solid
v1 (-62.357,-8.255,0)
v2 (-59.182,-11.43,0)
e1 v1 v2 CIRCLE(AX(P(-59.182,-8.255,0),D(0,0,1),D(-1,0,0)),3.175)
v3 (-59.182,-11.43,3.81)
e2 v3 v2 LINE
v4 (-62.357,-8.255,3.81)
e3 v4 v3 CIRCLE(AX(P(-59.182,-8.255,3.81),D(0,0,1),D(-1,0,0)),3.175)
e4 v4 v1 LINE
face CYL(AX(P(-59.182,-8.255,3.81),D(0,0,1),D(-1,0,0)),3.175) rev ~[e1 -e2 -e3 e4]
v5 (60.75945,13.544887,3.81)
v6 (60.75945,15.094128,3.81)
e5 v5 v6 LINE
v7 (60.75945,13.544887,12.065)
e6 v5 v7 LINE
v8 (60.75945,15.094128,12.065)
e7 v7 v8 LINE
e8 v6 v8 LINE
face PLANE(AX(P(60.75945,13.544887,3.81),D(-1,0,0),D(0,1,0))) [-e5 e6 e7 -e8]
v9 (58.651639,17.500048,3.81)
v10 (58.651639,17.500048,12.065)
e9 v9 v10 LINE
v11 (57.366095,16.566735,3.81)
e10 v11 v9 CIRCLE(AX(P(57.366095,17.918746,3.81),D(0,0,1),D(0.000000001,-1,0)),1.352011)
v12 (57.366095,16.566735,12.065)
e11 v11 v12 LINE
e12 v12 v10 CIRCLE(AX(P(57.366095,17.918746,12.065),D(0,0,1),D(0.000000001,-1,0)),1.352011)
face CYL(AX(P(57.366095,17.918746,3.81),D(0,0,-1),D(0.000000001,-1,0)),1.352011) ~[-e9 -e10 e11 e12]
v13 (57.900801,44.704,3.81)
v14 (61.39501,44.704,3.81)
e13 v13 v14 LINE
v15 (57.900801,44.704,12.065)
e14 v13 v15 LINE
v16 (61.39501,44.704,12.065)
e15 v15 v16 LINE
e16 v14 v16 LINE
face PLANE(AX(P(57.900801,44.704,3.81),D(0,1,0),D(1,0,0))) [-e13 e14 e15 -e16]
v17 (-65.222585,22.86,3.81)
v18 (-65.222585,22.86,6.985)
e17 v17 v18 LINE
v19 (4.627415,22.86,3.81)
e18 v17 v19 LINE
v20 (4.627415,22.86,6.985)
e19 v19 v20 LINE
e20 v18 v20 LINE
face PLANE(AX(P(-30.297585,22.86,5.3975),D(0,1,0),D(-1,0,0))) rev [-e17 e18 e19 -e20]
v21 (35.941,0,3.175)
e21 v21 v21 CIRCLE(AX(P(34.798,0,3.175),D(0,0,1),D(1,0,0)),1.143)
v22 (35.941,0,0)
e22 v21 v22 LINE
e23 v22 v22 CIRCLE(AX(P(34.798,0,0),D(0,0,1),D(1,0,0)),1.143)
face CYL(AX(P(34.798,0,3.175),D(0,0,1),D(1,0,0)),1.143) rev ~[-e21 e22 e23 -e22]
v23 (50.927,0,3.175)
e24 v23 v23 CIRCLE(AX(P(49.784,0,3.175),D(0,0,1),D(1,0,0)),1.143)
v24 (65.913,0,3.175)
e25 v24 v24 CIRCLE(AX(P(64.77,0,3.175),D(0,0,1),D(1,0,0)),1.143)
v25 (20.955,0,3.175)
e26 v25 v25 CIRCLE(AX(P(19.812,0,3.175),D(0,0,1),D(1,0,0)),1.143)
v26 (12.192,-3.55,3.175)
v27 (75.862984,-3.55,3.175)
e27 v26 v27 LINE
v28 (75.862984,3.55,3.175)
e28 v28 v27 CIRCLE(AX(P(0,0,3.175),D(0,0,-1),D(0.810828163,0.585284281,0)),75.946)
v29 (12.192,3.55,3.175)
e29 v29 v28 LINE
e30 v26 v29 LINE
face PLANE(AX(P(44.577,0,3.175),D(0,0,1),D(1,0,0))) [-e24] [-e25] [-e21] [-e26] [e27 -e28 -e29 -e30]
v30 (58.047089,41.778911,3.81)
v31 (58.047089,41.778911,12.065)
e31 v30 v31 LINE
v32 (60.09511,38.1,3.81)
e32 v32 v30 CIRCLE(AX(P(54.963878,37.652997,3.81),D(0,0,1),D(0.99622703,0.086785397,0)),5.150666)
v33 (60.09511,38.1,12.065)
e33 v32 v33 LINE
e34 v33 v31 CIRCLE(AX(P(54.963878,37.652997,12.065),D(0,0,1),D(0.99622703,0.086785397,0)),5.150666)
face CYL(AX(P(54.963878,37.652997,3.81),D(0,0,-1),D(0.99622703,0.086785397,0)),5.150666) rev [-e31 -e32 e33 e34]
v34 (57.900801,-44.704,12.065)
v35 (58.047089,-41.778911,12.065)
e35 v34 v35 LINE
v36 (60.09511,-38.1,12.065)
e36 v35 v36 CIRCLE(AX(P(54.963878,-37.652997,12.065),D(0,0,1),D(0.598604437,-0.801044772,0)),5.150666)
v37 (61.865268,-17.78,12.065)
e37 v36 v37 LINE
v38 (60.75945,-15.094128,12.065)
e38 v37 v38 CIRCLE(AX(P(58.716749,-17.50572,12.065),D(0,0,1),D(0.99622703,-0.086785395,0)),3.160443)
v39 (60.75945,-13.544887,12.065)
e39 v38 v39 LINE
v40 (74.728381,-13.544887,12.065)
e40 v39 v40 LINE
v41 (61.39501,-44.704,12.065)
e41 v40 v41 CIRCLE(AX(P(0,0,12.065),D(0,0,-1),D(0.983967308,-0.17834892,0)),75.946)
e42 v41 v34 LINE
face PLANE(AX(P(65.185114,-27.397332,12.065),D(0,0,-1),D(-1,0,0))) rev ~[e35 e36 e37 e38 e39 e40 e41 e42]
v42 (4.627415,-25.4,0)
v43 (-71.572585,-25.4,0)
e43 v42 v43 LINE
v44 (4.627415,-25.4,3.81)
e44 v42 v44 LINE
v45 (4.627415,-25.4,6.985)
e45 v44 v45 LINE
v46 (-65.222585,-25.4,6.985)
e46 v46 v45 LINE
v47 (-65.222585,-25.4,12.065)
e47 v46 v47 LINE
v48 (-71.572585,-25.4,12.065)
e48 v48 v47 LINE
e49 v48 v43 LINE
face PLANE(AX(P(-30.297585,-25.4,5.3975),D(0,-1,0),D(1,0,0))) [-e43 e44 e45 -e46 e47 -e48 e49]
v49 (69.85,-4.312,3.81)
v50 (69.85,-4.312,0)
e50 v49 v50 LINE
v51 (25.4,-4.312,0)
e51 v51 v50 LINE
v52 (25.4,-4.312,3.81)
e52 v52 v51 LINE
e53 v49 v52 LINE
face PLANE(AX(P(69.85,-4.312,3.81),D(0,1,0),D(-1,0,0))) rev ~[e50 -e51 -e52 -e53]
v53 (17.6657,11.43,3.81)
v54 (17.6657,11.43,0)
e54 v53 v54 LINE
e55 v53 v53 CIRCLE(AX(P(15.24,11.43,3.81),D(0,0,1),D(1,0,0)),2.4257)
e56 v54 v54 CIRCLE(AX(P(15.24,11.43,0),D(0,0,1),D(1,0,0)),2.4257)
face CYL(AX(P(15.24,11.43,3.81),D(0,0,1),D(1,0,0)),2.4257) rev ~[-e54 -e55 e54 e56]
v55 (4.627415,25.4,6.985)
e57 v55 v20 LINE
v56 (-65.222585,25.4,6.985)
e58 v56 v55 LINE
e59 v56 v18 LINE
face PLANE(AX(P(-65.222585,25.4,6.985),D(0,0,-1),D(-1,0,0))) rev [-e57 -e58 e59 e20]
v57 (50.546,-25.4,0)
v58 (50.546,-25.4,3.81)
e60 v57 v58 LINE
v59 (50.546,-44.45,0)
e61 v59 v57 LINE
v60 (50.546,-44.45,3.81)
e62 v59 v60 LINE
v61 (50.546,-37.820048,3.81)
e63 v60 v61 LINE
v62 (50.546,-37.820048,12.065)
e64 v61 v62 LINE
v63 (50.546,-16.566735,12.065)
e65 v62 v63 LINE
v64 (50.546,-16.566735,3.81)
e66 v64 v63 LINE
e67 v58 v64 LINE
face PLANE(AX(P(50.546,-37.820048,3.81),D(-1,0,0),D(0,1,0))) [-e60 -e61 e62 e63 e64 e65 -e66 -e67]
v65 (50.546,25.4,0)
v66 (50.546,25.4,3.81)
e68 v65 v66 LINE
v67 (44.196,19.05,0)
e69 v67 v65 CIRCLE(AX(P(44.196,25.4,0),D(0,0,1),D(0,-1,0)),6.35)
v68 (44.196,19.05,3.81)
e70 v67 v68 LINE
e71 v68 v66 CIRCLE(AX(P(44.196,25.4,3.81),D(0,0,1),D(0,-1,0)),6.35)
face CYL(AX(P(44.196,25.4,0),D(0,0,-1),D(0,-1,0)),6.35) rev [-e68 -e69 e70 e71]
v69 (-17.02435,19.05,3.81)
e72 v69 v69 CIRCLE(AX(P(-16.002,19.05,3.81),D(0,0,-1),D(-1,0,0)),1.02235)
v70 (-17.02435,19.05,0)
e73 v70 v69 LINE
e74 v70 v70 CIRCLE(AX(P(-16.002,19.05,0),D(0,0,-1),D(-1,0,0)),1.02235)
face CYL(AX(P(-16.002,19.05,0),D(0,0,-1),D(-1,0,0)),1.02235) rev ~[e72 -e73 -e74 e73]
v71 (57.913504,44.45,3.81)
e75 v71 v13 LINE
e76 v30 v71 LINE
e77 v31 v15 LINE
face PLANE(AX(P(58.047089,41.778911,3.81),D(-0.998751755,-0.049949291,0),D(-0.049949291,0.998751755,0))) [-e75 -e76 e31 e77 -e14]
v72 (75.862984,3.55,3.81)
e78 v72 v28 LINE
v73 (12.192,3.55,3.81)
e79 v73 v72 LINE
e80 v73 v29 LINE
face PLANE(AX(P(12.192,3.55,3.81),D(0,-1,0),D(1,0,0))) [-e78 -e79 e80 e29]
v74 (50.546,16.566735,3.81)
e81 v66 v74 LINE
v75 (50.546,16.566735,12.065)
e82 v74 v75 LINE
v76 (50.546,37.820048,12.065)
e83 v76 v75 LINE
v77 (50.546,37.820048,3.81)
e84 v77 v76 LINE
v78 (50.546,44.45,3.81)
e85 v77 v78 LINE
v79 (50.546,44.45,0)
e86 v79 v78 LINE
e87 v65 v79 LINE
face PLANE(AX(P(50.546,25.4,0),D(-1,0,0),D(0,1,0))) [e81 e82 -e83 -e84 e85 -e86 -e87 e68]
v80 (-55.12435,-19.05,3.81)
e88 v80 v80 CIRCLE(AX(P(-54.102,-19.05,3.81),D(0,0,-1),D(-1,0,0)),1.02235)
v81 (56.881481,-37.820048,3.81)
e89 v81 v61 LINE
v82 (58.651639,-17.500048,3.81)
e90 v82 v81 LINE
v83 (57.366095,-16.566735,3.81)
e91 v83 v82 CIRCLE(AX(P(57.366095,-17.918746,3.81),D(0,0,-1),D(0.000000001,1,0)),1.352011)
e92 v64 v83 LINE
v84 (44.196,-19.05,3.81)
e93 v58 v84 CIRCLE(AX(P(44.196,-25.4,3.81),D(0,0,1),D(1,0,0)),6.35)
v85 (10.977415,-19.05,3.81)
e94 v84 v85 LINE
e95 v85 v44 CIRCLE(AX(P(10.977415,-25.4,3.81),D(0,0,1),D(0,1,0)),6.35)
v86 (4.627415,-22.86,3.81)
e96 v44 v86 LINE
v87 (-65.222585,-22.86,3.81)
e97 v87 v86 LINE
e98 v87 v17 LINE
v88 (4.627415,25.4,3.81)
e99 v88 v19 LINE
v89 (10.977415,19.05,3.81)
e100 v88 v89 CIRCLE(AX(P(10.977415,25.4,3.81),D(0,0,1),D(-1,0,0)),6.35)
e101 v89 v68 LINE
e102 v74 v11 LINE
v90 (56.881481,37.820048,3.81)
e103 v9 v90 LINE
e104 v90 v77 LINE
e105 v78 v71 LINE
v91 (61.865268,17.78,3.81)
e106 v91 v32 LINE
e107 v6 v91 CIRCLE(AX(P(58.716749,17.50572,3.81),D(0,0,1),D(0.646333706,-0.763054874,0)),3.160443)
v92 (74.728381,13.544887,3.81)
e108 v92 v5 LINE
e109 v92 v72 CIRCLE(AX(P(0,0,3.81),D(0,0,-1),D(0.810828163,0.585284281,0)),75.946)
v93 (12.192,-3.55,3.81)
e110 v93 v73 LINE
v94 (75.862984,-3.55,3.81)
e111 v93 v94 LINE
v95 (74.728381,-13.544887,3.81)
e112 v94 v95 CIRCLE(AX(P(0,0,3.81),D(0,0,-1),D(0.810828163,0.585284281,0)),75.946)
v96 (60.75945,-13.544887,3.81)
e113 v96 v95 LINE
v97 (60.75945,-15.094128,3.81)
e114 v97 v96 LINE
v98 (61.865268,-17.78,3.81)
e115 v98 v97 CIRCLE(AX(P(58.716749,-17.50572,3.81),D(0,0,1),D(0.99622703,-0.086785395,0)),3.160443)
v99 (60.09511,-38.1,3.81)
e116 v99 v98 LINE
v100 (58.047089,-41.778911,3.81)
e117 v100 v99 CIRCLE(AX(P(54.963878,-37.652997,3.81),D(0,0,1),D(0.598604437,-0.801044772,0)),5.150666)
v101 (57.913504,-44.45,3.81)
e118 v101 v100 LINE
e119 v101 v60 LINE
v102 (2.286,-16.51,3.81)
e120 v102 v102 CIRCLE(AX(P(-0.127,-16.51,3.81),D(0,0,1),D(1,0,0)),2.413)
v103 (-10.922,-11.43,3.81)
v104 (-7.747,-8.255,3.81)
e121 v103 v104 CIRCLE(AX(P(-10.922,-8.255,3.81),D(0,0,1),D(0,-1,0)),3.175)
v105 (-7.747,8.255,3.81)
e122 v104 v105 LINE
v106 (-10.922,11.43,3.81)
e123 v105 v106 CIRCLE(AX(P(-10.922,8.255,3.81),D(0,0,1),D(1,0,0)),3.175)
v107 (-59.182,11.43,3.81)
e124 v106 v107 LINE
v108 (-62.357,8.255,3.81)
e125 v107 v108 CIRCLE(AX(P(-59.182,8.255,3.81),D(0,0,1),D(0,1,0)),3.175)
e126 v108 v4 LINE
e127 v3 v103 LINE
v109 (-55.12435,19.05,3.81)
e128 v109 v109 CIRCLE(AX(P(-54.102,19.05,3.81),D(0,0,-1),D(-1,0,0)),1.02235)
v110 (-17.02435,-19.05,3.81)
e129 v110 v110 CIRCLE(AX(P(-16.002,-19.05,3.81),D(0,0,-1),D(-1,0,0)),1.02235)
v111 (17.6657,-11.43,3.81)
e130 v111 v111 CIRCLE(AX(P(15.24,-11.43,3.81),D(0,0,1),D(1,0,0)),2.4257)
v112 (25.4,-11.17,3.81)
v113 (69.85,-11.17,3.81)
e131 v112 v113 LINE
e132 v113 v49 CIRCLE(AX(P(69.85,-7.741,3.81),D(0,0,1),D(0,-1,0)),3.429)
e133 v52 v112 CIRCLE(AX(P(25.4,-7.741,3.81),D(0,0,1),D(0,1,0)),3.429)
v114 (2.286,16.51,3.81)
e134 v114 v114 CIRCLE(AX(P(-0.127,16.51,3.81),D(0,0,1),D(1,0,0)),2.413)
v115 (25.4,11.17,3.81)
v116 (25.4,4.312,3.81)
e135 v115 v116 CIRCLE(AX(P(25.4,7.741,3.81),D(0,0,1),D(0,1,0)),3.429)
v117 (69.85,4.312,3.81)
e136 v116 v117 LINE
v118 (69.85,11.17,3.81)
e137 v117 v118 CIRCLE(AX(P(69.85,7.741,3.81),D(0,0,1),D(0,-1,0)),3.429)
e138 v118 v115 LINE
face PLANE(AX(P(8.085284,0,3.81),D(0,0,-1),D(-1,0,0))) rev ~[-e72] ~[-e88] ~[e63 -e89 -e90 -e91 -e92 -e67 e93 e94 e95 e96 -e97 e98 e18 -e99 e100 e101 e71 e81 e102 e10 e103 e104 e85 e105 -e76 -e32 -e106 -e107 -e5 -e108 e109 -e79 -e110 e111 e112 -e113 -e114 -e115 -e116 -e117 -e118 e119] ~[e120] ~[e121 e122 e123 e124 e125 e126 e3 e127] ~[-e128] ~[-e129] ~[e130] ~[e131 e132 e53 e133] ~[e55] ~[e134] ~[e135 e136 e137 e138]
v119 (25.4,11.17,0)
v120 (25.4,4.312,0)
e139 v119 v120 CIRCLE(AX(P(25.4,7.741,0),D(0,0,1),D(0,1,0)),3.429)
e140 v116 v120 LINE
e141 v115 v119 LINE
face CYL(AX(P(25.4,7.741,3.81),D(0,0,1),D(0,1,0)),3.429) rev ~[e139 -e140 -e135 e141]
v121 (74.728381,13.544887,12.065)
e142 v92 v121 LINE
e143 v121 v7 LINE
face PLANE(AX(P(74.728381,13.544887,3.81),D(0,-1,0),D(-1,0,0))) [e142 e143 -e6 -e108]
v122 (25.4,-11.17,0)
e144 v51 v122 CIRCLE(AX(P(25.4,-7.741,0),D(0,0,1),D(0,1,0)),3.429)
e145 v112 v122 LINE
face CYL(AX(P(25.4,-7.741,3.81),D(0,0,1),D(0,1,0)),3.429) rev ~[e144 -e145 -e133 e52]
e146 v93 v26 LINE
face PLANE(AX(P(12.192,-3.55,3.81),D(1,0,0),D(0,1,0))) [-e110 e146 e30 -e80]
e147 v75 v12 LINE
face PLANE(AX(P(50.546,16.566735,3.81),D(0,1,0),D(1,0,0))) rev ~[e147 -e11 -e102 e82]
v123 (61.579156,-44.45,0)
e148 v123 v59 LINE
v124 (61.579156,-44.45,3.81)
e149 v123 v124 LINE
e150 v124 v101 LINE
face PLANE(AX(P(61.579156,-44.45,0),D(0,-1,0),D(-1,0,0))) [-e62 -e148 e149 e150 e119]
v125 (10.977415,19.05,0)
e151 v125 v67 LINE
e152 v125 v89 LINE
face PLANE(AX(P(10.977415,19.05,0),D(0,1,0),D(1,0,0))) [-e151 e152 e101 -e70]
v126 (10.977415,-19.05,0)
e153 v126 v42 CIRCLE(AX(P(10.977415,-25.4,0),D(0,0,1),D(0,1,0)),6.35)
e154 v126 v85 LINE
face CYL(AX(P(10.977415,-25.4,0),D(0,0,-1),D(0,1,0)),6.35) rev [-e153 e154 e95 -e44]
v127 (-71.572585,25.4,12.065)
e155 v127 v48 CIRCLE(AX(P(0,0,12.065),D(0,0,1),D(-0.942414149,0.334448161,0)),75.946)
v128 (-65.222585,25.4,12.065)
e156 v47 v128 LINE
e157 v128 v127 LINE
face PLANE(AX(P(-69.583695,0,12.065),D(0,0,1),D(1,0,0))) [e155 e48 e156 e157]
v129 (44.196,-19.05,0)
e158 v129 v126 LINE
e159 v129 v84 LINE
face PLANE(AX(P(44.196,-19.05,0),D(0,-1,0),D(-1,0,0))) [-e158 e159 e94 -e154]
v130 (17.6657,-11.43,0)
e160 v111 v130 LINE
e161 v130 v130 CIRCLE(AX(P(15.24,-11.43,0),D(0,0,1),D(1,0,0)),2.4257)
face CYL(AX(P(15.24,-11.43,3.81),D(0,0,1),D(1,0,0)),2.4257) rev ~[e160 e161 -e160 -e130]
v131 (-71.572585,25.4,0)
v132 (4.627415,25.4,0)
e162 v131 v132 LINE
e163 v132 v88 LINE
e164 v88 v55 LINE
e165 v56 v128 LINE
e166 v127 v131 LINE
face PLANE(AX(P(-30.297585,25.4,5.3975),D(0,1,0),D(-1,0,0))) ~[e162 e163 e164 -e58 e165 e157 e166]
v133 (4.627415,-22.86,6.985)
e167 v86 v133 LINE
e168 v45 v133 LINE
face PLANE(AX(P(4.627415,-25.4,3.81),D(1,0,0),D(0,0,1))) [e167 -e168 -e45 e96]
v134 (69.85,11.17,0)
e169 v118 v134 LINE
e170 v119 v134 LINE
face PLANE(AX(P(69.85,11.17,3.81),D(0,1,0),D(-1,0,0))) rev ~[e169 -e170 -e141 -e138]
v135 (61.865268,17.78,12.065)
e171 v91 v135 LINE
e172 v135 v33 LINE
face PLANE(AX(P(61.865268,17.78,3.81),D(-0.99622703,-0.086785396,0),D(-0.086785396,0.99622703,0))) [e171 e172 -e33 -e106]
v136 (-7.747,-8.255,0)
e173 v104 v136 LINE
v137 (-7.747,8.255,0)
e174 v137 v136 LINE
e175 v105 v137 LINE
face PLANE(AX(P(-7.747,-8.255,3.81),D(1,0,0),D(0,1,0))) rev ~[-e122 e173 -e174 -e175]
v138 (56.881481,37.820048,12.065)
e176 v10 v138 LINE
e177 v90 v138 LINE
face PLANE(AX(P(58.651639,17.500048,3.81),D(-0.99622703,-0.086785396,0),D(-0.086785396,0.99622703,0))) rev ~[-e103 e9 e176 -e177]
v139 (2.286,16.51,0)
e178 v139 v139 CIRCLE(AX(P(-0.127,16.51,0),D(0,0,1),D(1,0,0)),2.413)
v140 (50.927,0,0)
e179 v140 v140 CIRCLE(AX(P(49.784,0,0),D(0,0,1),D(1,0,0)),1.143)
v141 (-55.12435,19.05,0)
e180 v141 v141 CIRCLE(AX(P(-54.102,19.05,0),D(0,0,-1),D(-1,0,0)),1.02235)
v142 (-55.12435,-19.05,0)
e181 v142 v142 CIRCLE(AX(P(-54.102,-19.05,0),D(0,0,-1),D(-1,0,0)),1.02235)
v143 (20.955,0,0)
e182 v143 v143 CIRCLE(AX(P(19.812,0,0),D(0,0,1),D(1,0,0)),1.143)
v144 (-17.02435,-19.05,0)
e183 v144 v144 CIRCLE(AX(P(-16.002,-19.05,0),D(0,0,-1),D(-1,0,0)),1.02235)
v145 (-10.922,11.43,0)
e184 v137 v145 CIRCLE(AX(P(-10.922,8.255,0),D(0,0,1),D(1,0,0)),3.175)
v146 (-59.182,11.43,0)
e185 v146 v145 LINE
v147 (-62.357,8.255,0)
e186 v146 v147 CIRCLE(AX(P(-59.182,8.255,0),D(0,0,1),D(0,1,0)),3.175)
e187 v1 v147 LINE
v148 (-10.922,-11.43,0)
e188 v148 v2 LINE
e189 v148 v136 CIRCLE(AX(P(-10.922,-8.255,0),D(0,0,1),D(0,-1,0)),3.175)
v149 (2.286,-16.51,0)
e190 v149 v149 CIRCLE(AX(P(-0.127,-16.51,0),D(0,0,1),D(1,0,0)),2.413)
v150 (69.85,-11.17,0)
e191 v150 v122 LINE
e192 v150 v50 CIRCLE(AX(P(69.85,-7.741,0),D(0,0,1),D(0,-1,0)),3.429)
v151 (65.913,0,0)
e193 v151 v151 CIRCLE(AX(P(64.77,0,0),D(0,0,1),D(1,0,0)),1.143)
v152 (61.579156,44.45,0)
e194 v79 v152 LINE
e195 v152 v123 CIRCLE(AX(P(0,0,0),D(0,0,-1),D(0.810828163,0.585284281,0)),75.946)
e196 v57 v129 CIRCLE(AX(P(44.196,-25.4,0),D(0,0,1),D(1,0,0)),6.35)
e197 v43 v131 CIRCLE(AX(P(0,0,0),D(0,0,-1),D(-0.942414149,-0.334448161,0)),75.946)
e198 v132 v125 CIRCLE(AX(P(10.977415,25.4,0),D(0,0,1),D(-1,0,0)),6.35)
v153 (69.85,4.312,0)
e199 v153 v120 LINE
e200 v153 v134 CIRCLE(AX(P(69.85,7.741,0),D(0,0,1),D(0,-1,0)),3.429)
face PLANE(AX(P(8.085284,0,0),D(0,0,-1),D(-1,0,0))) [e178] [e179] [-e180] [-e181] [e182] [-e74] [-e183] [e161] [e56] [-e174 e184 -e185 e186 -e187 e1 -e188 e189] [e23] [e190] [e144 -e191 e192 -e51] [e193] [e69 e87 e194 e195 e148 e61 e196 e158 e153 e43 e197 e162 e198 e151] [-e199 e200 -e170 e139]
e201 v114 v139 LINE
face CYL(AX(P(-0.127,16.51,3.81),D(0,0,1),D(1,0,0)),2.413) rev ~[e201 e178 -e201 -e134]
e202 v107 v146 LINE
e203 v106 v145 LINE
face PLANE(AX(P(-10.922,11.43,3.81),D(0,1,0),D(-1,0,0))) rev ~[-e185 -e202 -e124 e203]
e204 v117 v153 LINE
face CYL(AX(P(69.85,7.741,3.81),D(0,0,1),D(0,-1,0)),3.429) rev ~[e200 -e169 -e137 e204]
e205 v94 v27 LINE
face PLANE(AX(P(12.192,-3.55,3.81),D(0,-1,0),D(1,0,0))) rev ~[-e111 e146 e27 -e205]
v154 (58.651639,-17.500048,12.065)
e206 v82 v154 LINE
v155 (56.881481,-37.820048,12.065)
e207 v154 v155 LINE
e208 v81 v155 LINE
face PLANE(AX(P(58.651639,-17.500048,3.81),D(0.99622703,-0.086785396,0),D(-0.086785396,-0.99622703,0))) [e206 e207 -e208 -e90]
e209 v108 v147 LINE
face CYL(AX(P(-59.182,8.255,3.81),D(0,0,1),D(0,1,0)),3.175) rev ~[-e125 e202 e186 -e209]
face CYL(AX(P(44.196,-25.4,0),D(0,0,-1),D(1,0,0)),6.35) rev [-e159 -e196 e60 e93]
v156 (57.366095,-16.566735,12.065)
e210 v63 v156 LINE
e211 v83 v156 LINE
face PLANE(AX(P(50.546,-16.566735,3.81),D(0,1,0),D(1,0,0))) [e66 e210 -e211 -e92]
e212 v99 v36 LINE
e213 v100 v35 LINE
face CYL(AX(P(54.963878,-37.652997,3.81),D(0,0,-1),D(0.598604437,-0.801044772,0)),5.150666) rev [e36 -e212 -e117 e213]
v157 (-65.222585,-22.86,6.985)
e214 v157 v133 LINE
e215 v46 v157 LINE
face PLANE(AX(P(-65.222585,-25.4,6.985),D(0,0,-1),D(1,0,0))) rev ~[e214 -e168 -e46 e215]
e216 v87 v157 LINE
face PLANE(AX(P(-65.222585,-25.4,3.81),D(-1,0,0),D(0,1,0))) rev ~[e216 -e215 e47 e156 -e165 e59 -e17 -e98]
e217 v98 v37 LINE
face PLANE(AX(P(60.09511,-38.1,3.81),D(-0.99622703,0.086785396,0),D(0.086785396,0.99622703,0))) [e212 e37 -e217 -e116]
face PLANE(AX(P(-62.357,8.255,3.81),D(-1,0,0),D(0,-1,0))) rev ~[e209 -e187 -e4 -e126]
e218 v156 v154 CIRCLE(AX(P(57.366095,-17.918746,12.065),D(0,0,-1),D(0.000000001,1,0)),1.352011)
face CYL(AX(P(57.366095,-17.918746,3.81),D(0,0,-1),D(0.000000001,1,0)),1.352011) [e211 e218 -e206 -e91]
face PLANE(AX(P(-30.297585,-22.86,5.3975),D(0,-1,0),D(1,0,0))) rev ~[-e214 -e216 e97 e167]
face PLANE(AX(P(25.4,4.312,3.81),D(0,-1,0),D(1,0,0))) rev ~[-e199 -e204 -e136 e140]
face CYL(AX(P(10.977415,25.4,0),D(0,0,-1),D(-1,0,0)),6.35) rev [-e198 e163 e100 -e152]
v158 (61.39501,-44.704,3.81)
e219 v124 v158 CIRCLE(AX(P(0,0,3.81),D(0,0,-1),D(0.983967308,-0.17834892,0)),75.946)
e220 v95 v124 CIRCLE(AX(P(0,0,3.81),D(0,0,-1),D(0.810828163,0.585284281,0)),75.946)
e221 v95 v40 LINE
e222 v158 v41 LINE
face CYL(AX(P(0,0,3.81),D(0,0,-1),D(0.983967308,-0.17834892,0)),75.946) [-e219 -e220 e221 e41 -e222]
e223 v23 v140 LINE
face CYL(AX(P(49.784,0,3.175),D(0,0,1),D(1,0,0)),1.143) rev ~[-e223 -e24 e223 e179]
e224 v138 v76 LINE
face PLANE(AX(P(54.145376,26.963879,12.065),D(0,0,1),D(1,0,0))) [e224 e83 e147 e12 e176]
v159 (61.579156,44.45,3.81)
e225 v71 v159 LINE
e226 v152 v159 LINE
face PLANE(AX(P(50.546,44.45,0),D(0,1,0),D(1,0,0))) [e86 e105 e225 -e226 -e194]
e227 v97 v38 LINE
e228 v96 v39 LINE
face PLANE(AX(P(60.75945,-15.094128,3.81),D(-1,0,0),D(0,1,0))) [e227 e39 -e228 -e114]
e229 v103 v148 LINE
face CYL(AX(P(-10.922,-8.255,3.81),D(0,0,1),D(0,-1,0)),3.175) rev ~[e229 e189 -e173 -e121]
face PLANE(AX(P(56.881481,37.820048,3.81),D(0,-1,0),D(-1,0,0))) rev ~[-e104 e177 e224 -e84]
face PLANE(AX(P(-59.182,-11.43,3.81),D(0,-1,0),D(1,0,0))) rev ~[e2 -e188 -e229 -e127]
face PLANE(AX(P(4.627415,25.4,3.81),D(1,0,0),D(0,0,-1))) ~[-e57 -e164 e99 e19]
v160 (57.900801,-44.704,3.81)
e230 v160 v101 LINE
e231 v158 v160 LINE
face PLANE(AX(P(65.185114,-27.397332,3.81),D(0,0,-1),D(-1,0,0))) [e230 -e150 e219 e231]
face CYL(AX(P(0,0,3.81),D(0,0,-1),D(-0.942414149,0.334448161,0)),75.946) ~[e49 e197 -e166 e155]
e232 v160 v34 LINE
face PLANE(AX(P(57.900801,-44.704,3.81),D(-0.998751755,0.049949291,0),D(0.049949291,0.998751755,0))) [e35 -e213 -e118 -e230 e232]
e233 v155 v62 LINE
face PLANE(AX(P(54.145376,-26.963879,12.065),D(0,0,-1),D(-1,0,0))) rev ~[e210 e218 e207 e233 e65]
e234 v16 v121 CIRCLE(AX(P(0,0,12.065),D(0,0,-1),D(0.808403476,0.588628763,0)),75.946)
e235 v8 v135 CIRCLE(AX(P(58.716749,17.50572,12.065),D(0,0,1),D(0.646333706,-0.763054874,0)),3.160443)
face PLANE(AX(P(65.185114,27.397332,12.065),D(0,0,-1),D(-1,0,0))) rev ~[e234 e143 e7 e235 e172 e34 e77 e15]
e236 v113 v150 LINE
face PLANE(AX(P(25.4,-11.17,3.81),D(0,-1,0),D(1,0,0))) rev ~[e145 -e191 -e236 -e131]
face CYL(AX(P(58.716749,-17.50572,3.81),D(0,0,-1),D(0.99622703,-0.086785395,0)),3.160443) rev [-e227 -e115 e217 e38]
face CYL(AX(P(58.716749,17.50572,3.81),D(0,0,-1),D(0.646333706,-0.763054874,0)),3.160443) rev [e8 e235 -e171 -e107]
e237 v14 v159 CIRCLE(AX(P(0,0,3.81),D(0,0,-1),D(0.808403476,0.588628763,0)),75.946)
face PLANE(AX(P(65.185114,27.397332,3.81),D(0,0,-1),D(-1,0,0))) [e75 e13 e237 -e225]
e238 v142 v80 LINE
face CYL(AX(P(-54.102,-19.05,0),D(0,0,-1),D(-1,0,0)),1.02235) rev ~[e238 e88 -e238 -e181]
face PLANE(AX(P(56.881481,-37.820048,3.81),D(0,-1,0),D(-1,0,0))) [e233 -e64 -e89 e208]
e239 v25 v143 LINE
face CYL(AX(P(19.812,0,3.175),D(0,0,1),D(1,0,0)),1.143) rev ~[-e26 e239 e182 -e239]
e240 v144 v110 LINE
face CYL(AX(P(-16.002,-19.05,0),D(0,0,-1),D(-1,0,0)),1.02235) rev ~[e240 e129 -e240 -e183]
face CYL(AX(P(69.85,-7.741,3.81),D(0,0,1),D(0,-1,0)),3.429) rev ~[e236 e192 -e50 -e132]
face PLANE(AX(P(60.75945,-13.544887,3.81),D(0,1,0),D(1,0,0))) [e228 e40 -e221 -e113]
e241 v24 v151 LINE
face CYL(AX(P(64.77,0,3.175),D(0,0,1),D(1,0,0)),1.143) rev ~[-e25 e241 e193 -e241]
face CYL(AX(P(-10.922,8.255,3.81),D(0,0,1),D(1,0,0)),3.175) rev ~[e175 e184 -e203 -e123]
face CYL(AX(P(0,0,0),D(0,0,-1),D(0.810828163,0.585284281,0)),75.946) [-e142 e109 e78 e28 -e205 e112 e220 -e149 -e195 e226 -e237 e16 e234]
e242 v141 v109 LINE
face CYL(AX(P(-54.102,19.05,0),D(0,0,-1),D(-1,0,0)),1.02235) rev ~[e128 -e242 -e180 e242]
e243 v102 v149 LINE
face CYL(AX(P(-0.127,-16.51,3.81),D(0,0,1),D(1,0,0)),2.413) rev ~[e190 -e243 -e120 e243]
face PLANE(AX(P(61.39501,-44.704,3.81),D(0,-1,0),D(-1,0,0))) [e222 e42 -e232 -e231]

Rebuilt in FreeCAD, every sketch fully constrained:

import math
import FreeCAD as App
import Part
import Sketcher

V = App.Vector
Q = App.Units.Quantity


def add_polygon(sketch, points):
    """Adds a closed chain of lines whose ends are joined by coincident constraints."""
    first, n = sketch.GeometryCount, len(points)
    for a, b in zip(points, points[1:] + points[:1]):
        sketch.addGeometry(Part.LineSegment(App.Vector(*a, 0), App.Vector(*b, 0)), False)
    for i in range(n):
        sketch.addConstraint(Sketcher.Constraint("Coincident", first + i, 2, first + (i + 1) % n, 1))

doc = App.newDocument("Part")
body = doc.addObject("PartDesign::Body", "Body")

sketch1 = doc.addObject("Sketcher::SketchObject", "Sketch")
body.addObject(sketch1)
sketch1.AttachmentSupport = (doc.XY_Plane, [""])
sketch1.MapMode = "FlatFace"
sketch1.addGeometry([
    Part.LineSegment(V(44.196, 19.05, 0), V(10.977415, 19.05, 0)),
    Part.ArcOfCircle(Part.Circle(V(10.977415, 25.4, 0), V(0, 0, 1), 6.35), math.radians(180), math.radians(270)),
    Part.LineSegment(V(4.627415, 25.4, 0), V(-71.572585, 25.4, 0)),
    Part.ArcOfCircle(Part.Circle(V(0, 0, 0), V(0, 0, 1), 75.946), math.radians(160.461016), math.radians(199.538984)),
    Part.LineSegment(V(-71.572585, -25.4, 0), V(4.627415, -25.4, 0)),
    Part.ArcOfCircle(Part.Circle(V(10.977415, -25.4, 0), V(0, 0, 1), 6.35), math.radians(90), math.radians(180)),
    Part.LineSegment(V(10.977415, -19.05, 0), V(44.196, -19.05, 0)),
    Part.ArcOfCircle(Part.Circle(V(44.196, -25.4, 0), V(0, 0, 1), 6.35), math.radians(0), math.radians(90)),
    Part.LineSegment(V(50.546, -25.4, 0), V(50.546, -44.45, 0)),
    Part.LineSegment(V(50.546, -44.45, 0), V(61.579156, -44.45, 0)),
    Part.ArcOfCircle(Part.Circle(V(0, 0, 0), V(0, 0, 1), 75.946), math.radians(-35.823076), math.radians(35.823076)),
    Part.LineSegment(V(61.579156, 44.45, 0), V(50.546, 44.45, 0)),
    Part.LineSegment(V(50.546, 44.45, 0), V(50.546, 25.4, 0)),
    Part.ArcOfCircle(Part.Circle(V(44.196, 25.4, 0), V(0, 0, 1), 6.35), math.radians(-90), math.radians(0)),
], False)
sketch1.addConstraint([
    Sketcher.Constraint("Tangent", 0, 2, 1, 2),
    Sketcher.Constraint("Coincident", 1, 1, 2, 1),
    Sketcher.Constraint("Coincident", 2, 2, 3, 1),
    Sketcher.Constraint("Coincident", 3, 2, 4, 1),
    Sketcher.Constraint("Coincident", 4, 2, 5, 2),
    Sketcher.Constraint("Tangent", 5, 1, 6, 1),
    Sketcher.Constraint("Tangent", 6, 2, 7, 2),
    Sketcher.Constraint("Tangent", 7, 1, 8, 1),
    Sketcher.Constraint("Coincident", 8, 2, 9, 1),
    Sketcher.Constraint("Coincident", 9, 2, 10, 1),
    Sketcher.Constraint("Coincident", 10, 2, 11, 1),
    Sketcher.Constraint("Coincident", 11, 2, 12, 1),
    Sketcher.Constraint("Tangent", 12, 2, 13, 2),
    Sketcher.Constraint("Tangent", 13, 1, 0, 1),
    Sketcher.Constraint("Horizontal", 0),
    Sketcher.Constraint("Horizontal", 2),
    Sketcher.Constraint("Horizontal", 4),
    Sketcher.Constraint("Horizontal", 6),
    Sketcher.Constraint("Vertical", 8),
    Sketcher.Constraint("Horizontal", 9),
    Sketcher.Constraint("Horizontal", 11),
    Sketcher.Constraint("Vertical", 12),
    Sketcher.Constraint("Coincident", 3, 3, -1, 1),
    Sketcher.Constraint("Coincident", 10, 3, -1, 1),
    Sketcher.Constraint("Equal", 1, 5),
    Sketcher.Constraint("Equal", 5, 7),
    Sketcher.Constraint("Equal", 3, 10),
    Sketcher.Constraint("Equal", 7, 13),
    Sketcher.Constraint("Symmetric", 1, 3, 5, 3, -1),
    Sketcher.Constraint("Symmetric", 8, 2, 11, 2, -1),
    Sketcher.Constraint("Horizontal", 13, 3, 1, 1),
    Sketcher.Constraint("Horizontal", 7, 3, 3, 2),
    Sketcher.Constraint("DistanceX", 2, 2, 2, 1, Q("3 in")),
    Sketcher.Constraint("Radius", 1, Q("0.25 in")),
    Sketcher.Constraint("Radius", 3, Q("2.99 in")),
    Sketcher.Constraint("DistanceY", -1, 1, 1, 3, Q("1 in")),
    Sketcher.Constraint("DistanceY", 8, 2, 6, 2, Q("1 in")),
    Sketcher.Constraint("DistanceX", -1, 1, 7, 3, Q("1.74 in")),
])
pad1 = doc.addObject("PartDesign::Pad", "Pad")
body.addObject(pad1)
pad1.Profile = sketch1
pad1.Length = Q("0.15 in")

sketch2 = doc.addObject("Sketcher::SketchObject", "Sketch001")
body.addObject(sketch2)
sketch2.AttachmentSupport = (doc.XY_Plane, [""])
sketch2.MapMode = "FlatFace"
sketch2.AttachmentOffset = App.Placement(V(0, 0, 0.15 * 25.4), App.Rotation())
sketch2.addGeometry([
    Part.LineSegment(V(60.09511, 38.1, 0), V(61.865268, 17.78, 0)),
    Part.ArcOfCircle(Part.Circle(V(58.716749, 17.50572, 0), V(0, 0, 1), 3.160443), math.radians(-49.734254), math.radians(4.9787)),
    Part.LineSegment(V(60.75945, 15.094128, 0), V(60.75945, 13.544887, 0)),
    Part.LineSegment(V(60.75945, 13.544887, 0), V(74.728381, 13.544887, 0)),
    Part.ArcOfCircle(Part.Circle(V(0, 0, 0), V(0, 0, 1), 75.946), math.radians(10.273604), math.radians(36.059761)),
    Part.LineSegment(V(61.39501, 44.704, 0), V(57.900801, 44.704, 0)),
    Part.LineSegment(V(57.900801, 44.704, 0), V(58.047089, 41.778911, 0)),
    Part.ArcOfCircle(Part.Circle(V(54.963878, 37.652997, 0), V(0, 0, 1), 5.150666), math.radians(4.9787), math.radians(53.229987)),
    Part.LineSegment(V(58.651639, 17.500048, 0), V(56.881481, 37.820048, 0)),
    Part.LineSegment(V(56.881481, 37.820048, 0), V(50.546, 37.820048, 0)),
    Part.LineSegment(V(50.546, 37.820048, 0), V(50.546, 16.566735, 0)),
    Part.LineSegment(V(50.546, 16.566735, 0), V(57.366095, 16.566735, 0)),
    Part.ArcOfCircle(Part.Circle(V(57.366095, 17.918746, 0), V(0, 0, 1), 1.352011), math.radians(-90), math.radians(-18.040301)),
    Part.LineSegment(V(74.728381, -13.544887, 0), V(60.75945, -13.544887, 0)),
    Part.LineSegment(V(60.75945, -13.544887, 0), V(60.75945, -15.094128, 0)),
    Part.ArcOfCircle(Part.Circle(V(58.716749, -17.50572, 0), V(0, 0, 1), 3.160443), math.radians(-4.9787), math.radians(49.734254)),
    Part.LineSegment(V(61.865268, -17.78, 0), V(60.09511, -38.1, 0)),
    Part.ArcOfCircle(Part.Circle(V(54.963878, -37.652997, 0), V(0, 0, 1), 5.150666), math.radians(-53.229987), math.radians(-4.9787)),
    Part.LineSegment(V(58.047089, -41.778911, 0), V(57.900801, -44.704, 0)),
    Part.LineSegment(V(57.900801, -44.704, 0), V(61.39501, -44.704, 0)),
    Part.ArcOfCircle(Part.Circle(V(0, 0, 0), V(0, 0, 1), 75.946), math.radians(-36.059761), math.radians(-10.273604)),
    Part.LineSegment(V(57.366095, -16.566735, 0), V(50.546, -16.566735, 0)),
    Part.LineSegment(V(50.546, -16.566735, 0), V(50.546, -37.820048, 0)),
    Part.LineSegment(V(50.546, -37.820048, 0), V(56.881481, -37.820048, 0)),
    Part.LineSegment(V(56.881481, -37.820048, 0), V(58.651639, -17.500048, 0)),
    Part.ArcOfCircle(Part.Circle(V(57.366095, -17.918746, 0), V(0, 0, 1), 1.352011), math.radians(18.040301), math.radians(90)),
], False)
sketch2.addConstraint([
    Sketcher.Constraint("Tangent", 0, 2, 1, 2),
    Sketcher.Constraint("Coincident", 1, 1, 2, 1),
    Sketcher.Constraint("Coincident", 2, 2, 3, 1),
    Sketcher.Constraint("Coincident", 3, 2, 4, 1),
    Sketcher.Constraint("Coincident", 4, 2, 5, 1),
    Sketcher.Constraint("Coincident", 5, 2, 6, 1),
    Sketcher.Constraint("Coincident", 6, 2, 7, 2),
    Sketcher.Constraint("Tangent", 7, 1, 0, 1),
    Sketcher.Constraint("Coincident", 8, 2, 9, 1),
    Sketcher.Constraint("Coincident", 9, 2, 10, 1),
    Sketcher.Constraint("Coincident", 10, 2, 11, 1),
    Sketcher.Constraint("Tangent", 11, 2, 12, 1),
    Sketcher.Constraint("Coincident", 12, 2, 8, 1),
    Sketcher.Constraint("Coincident", 13, 2, 14, 1),
    Sketcher.Constraint("Coincident", 14, 2, 15, 2),
    Sketcher.Constraint("Tangent", 15, 1, 16, 1),
    Sketcher.Constraint("Tangent", 16, 2, 17, 2),
    Sketcher.Constraint("Coincident", 17, 1, 18, 1),
    Sketcher.Constraint("Coincident", 18, 2, 19, 1),
    Sketcher.Constraint("Coincident", 19, 2, 20, 1),
    Sketcher.Constraint("Coincident", 20, 2, 13, 1),
    Sketcher.Constraint("Coincident", 21, 2, 22, 1),
    Sketcher.Constraint("Coincident", 22, 2, 23, 1),
    Sketcher.Constraint("Coincident", 23, 2, 24, 1),
    Sketcher.Constraint("Coincident", 24, 2, 25, 1),
    Sketcher.Constraint("Tangent", 25, 2, 21, 1),
    Sketcher.Constraint("Vertical", 2),
    Sketcher.Constraint("Horizontal", 3),
    Sketcher.Constraint("Horizontal", 5),
    Sketcher.Constraint("Horizontal", 9),
    Sketcher.Constraint("Vertical", 10),
    Sketcher.Constraint("Horizontal", 11),
    Sketcher.Constraint("Horizontal", 13),
    Sketcher.Constraint("Vertical", 14),
    Sketcher.Constraint("Horizontal", 19),
    Sketcher.Constraint("Horizontal", 21),
    Sketcher.Constraint("Vertical", 22),
    Sketcher.Constraint("Horizontal", 23),
    Sketcher.Constraint("Coincident", 4, 3, -1, 1),
    Sketcher.Constraint("Coincident", 20, 3, -1, 1),
    Sketcher.Constraint("Equal", 1, 15),
    Sketcher.Constraint("Equal", 7, 17),
    Sketcher.Constraint("Equal", 4, 20),
    Sketcher.Constraint("Equal", 12, 25),
    Sketcher.Constraint("Symmetric", 1, 3, 15, 3, -1),
    Sketcher.Constraint("Symmetric", 7, 3, 17, 3, -1),
    Sketcher.Constraint("Symmetric", 12, 3, 25, 3, -1),
    Sketcher.Constraint("Symmetric", 2, 2, 13, 2, -1),
    Sketcher.Constraint("Symmetric", 5, 2, 18, 2, -1),
    Sketcher.Constraint("Symmetric", 9, 2, 22, 2, -1),
    Sketcher.Constraint("Parallel", 0, 8),
    Sketcher.Constraint("Parallel", 16, 24),
    Sketcher.Constraint("Vertical", 6, 2, 17, 1),
    Sketcher.Constraint("Vertical", 8, 2, 23, 2),
    Sketcher.Constraint("Equal", 0, 8),
    Sketcher.Constraint("Radius", 4, Q("2.99 in")),
    Sketcher.Constraint("DistanceY", -1, 1, 0, 2, Q("0.7 in")),
    Sketcher.Constraint("DistanceY", -1, 1, 7, 1, Q("1.5 in")),
    Sketcher.Constraint("DistanceY", -1, 1, 4, 2, Q("1.76 in")),
    Sketcher.Constraint("DistanceX", -1, 1, 9, 2, Q("1.99 in")),
    Sketcher.Constraint("Radius", 12, Q("1.352011 mm")),
    Sketcher.Constraint("Radius", 1, Q("3.160443 mm")),
    Sketcher.Constraint("Radius", 7, Q("5.150666 mm")),
    Sketcher.Constraint("DistanceY", 1, 3, 7, 3, Q("0.7931999 in")),
    Sketcher.Constraint("DistanceX", 3, 1, 3, 2, Q("13.968931 mm")),
    Sketcher.Constraint("DistanceX", 5, 2, 5, 1, Q("3.49421 mm")),
    Sketcher.Constraint("DistanceX", 9, 2, 9, 1, Q("6.335481 mm")),
    Sketcher.Constraint("DistanceY", 2, 2, 2, 1, Q("1.549241 mm")),
    Sketcher.Constraint("DistanceX", 1, 3, 1, 1, Q("2.042701 mm")),
    Sketcher.Constraint("DistanceY", 12, 2, 12, 3, Q("0.418699 mm")),
    Sketcher.Constraint("DistanceX", -1, 1, 6, 2, Q("58.047089 mm")),
    Sketcher.Constraint("DistanceY", 12, 3, 7, 3, Q("19.734251 mm")),
])
pad2 = doc.addObject("PartDesign::Pad", "Pad001")
body.addObject(pad2)
pad2.Profile = sketch2
pad2.Length = Q("0.325 in")

sketch3 = doc.addObject("Sketcher::SketchObject", "Sketch002")
body.addObject(sketch3)
sketch3.AttachmentSupport = (doc.XY_Plane, [""])
sketch3.MapMode = "FlatFace"
sketch3.AttachmentOffset = App.Placement(V(0, 0, 0.15 * 25.4), App.Rotation())
add_polygon(sketch3, [(12.192, 3.55), (12.192, -3.55), (76.962, -3.55), (76.962, 3.55)])
sketch3.addConstraint([
    Sketcher.Constraint("Vertical", 0),
    Sketcher.Constraint("Horizontal", 1),
    Sketcher.Constraint("Vertical", 2),
    Sketcher.Constraint("Horizontal", 3),
    Sketcher.Constraint("DistanceX", 1, 1, 1, 2, Q("2.55 in")),
    Sketcher.Constraint("DistanceX", -1, 1, 0, 2, Q("0.48 in")),
    Sketcher.Constraint("DistanceY", 0, 2, 0, 1, Q("7.1 mm")),
    Sketcher.Constraint("DistanceY", 0, 2, -1, 1, Q("3.55 mm")),
])
pocket1 = doc.addObject("PartDesign::Pocket", "Pocket")
body.addObject(pocket1)
pocket1.Profile = sketch3
pocket1.Length = Q("0.025 in")

sketch4 = doc.addObject("Sketcher::SketchObject", "Sketch003")
body.addObject(sketch4)
sketch4.AttachmentSupport = (doc.XY_Plane, [""])
sketch4.MapMode = "FlatFace"
sketch4.AttachmentOffset = App.Placement(V(0, 0, 0.15 * 25.4), App.Rotation())
sketch4.addGeometry([
    Part.LineSegment(V(69.85, 11.17, 0), V(25.4, 11.17, 0)),
    Part.ArcOfCircle(Part.Circle(V(25.4, 7.741, 0), V(0, 0, 1), 3.429), math.radians(90), math.radians(270)),
    Part.LineSegment(V(25.4, 4.312, 0), V(69.85, 4.312, 0)),
    Part.ArcOfCircle(Part.Circle(V(69.85, 7.741, 0), V(0, 0, 1), 3.429), math.radians(-90), math.radians(90)),
    Part.LineSegment(V(69.85, -4.312, 0), V(25.4, -4.312, 0)),
    Part.ArcOfCircle(Part.Circle(V(25.4, -7.741, 0), V(0, 0, 1), 3.429), math.radians(90), math.radians(270)),
    Part.LineSegment(V(25.4, -11.17, 0), V(69.85, -11.17, 0)),
    Part.ArcOfCircle(Part.Circle(V(69.85, -7.741, 0), V(0, 0, 1), 3.429), math.radians(-90), math.radians(90)),
], False)
sketch4.addConstraint([
    Sketcher.Constraint("Tangent", 0, 2, 1, 1),
    Sketcher.Constraint("Tangent", 1, 2, 2, 1),
    Sketcher.Constraint("Tangent", 2, 2, 3, 1),
    Sketcher.Constraint("Tangent", 3, 2, 0, 1),
    Sketcher.Constraint("Tangent", 4, 2, 5, 1),
    Sketcher.Constraint("Tangent", 5, 2, 6, 1),
    Sketcher.Constraint("Tangent", 6, 2, 7, 1),
    Sketcher.Constraint("Tangent", 7, 2, 4, 1),
    Sketcher.Constraint("Horizontal", 0),
    Sketcher.Constraint("Horizontal", 2),
    Sketcher.Constraint("Horizontal", 4),
    Sketcher.Constraint("Horizontal", 6),
    Sketcher.Constraint("Equal", 3, 5),
    Sketcher.Constraint("Symmetric", 1, 3, 5, 3, -1),
    Sketcher.Constraint("Vertical", 3, 3, 7, 3),
    Sketcher.Constraint("DistanceX", -1, 1, 1, 3, Q("1 in")),
    Sketcher.Constraint("Radius", 1, Q("0.135 in")),
    Sketcher.Constraint("DistanceX", 0, 2, 0, 1, Q("1.75 in")),
    Sketcher.Constraint("DistanceY", -1, 1, 1, 3, Q("7.741 mm")),
])
pocket2 = doc.addObject("PartDesign::Pocket", "Pocket001")
body.addObject(pocket2)
pocket2.Profile = sketch4
pocket2.Type = "ThroughAll"

sketch5 = doc.addObject("Sketcher::SketchObject", "Sketch004")
body.addObject(sketch5)
sketch5.AttachmentSupport = (doc.XY_Plane, [""])
sketch5.MapMode = "FlatFace"
sketch5.AttachmentOffset = App.Placement(V(0, 0, 0.15 * 25.4), App.Rotation())
sketch5.addGeometry([
    Part.LineSegment(V(-10.922, 11.43, 0), V(-59.182, 11.43, 0)),
    Part.ArcOfCircle(Part.Circle(V(-59.182, 8.255, 0), V(0, 0, 1), 3.175), math.radians(90), math.radians(180)),
    Part.LineSegment(V(-62.357, 8.255, 0), V(-62.357, -8.255, 0)),
    Part.ArcOfCircle(Part.Circle(V(-59.182, -8.255, 0), V(0, 0, 1), 3.175), math.radians(-180), math.radians(-90)),
    Part.LineSegment(V(-59.182, -11.43, 0), V(-10.922, -11.43, 0)),
    Part.ArcOfCircle(Part.Circle(V(-10.922, -8.255, 0), V(0, 0, 1), 3.175), math.radians(-90), math.radians(0)),
    Part.LineSegment(V(-7.747, -8.255, 0), V(-7.747, 8.255, 0)),
    Part.ArcOfCircle(Part.Circle(V(-10.922, 8.255, 0), V(0, 0, 1), 3.175), math.radians(0), math.radians(90)),
], False)
sketch5.addConstraint([
    Sketcher.Constraint("Tangent", 0, 2, 1, 1),
    Sketcher.Constraint("Tangent", 1, 2, 2, 1),
    Sketcher.Constraint("Tangent", 2, 2, 3, 1),
    Sketcher.Constraint("Tangent", 3, 2, 4, 1),
    Sketcher.Constraint("Tangent", 4, 2, 5, 1),
    Sketcher.Constraint("Tangent", 5, 2, 6, 1),
    Sketcher.Constraint("Tangent", 6, 2, 7, 1),
    Sketcher.Constraint("Tangent", 7, 2, 0, 1),
    Sketcher.Constraint("Horizontal", 0),
    Sketcher.Constraint("Vertical", 2),
    Sketcher.Constraint("Horizontal", 4),
    Sketcher.Constraint("Vertical", 6),
    Sketcher.Constraint("Equal", 1, 3),
    Sketcher.Constraint("Equal", 3, 5),
    Sketcher.Constraint("Equal", 5, 7),
    Sketcher.Constraint("DistanceX", 0, 2, 0, 1, Q("1.9 in")),
    Sketcher.Constraint("Radius", 1, Q("0.125 in")),
    Sketcher.Constraint("DistanceY", 2, 2, 2, 1, Q("0.65 in")),
    Sketcher.Constraint("DistanceX", 1, 3, -1, 1, Q("2.33 in")),
    Sketcher.Constraint("DistanceY", -1, 1, 0, 2, Q("0.45 in")),
])
pocket3 = doc.addObject("PartDesign::Pocket", "Pocket002")
body.addObject(pocket3)
pocket3.Profile = sketch5
pocket3.Type = "ThroughAll"

sketch6 = doc.addObject("Sketcher::SketchObject", "Sketch005")
body.addObject(sketch6)
sketch6.AttachmentSupport = (doc.XY_Plane, [""])
sketch6.MapMode = "FlatFace"
sketch6.AttachmentOffset = App.Placement(V(0, 0, 0.15 * 25.4), App.Rotation())
sketch6.addGeometry([
    Part.Circle(V(15.24, 11.43, 0), V(0, 0, 1), 2.4257),
    Part.Circle(V(15.24, -11.43, 0), V(0, 0, 1), 2.4257),
], False)
sketch6.addConstraint([
    Sketcher.Constraint("Equal", 0, 1),
    Sketcher.Constraint("Symmetric", 0, 3, 1, 3, -1),
    Sketcher.Constraint("Diameter", 0, Q("0.191 in")),
    Sketcher.Constraint("DistanceX", -1, 1, 0, 3, Q("0.6 in")),
    Sketcher.Constraint("DistanceY", 1, 3, 0, 3, Q("0.9 in")),
])
pocket4 = doc.addObject("PartDesign::Pocket", "Pocket003")
body.addObject(pocket4)
pocket4.Profile = sketch6
pocket4.Type = "ThroughAll"

sketch7 = doc.addObject("Sketcher::SketchObject", "Sketch006")
body.addObject(sketch7)
sketch7.AttachmentSupport = (doc.XY_Plane, [""])
sketch7.MapMode = "FlatFace"
sketch7.AttachmentOffset = App.Placement(V(0, 0, 0.125 * 25.4), App.Rotation())
sketch7.addGeometry([
    Part.Circle(V(19.812, 0, 0), V(0, 0, 1), 1.143),
    Part.Circle(V(34.798, 0, 0), V(0, 0, 1), 1.143),
    Part.Circle(V(49.784, 0, 0), V(0, 0, 1), 1.143),
    Part.Circle(V(64.77, 0, 0), V(0, 0, 1), 1.143),
], False)
sketch7.addConstraint([
    Sketcher.Constraint("Equal", 0, 1),
    Sketcher.Constraint("Equal", 1, 2),
    Sketcher.Constraint("Equal", 2, 3),
    Sketcher.Constraint("PointOnObject", 0, 3, -1),
    Sketcher.Constraint("PointOnObject", 1, 3, -1),
    Sketcher.Constraint("PointOnObject", 2, 3, -1),
    Sketcher.Constraint("PointOnObject", 3, 3, -1),
    Sketcher.Constraint("Diameter", 0, Q("0.09 in")),
    Sketcher.Constraint("DistanceX", -1, 1, 0, 3, Q("0.78 in")),
    Sketcher.Constraint("DistanceX", -1, 1, 1, 3, Q("1.37 in")),
    Sketcher.Constraint("DistanceX", -1, 1, 2, 3, Q("1.96 in")),
    Sketcher.Constraint("DistanceX", -1, 1, 3, 3, Q("2.55 in")),
])
pocket5 = doc.addObject("PartDesign::Pocket", "Pocket004")
body.addObject(pocket5)
pocket5.Profile = sketch7
pocket5.Length = Q("0.45 in")

sketch8 = doc.addObject("Sketcher::SketchObject", "Sketch007")
body.addObject(sketch8)
sketch8.AttachmentSupport = (doc.XY_Plane, [""])
sketch8.MapMode = "FlatFace"
sketch8.AttachmentOffset = App.Placement(V(0, 0, 0.15 * 25.4), App.Rotation())
sketch8.addGeometry([
    Part.Circle(V(-0.127, 16.51, 0), V(0, 0, 1), 2.413),
    Part.Circle(V(-0.127, -16.51, 0), V(0, 0, 1), 2.413),
], False)
sketch8.addConstraint([
    Sketcher.Constraint("Equal", 0, 1),
    Sketcher.Constraint("Symmetric", 0, 3, 1, 3, -1),
    Sketcher.Constraint("Diameter", 0, Q("0.19 in")),
    Sketcher.Constraint("DistanceY", 1, 3, 0, 3, Q("1.3 in")),
    Sketcher.Constraint("DistanceX", 0, 3, -1, 1, Q("0.005 in")),
])
pocket6 = doc.addObject("PartDesign::Pocket", "Pocket005")
body.addObject(pocket6)
pocket6.Profile = sketch8
pocket6.Type = "ThroughAll"

sketch9 = doc.addObject("Sketcher::SketchObject", "Sketch008")
body.addObject(sketch9)
sketch9.AttachmentSupport = (doc.XY_Plane, [""])
sketch9.MapMode = "FlatFace"
sketch9.AttachmentOffset = App.Placement(V(0, 0, 0.15 * 25.4), App.Rotation())
sketch9.addGeometry([
    Part.LineSegment(V(-71.572585, -25.4, 0), V(-65.222585, -25.4, 0)),
    Part.LineSegment(V(-65.222585, -25.4, 0), V(-65.222585, 25.4, 0)),
    Part.LineSegment(V(-65.222585, 25.4, 0), V(-71.572585, 25.4, 0)),
    Part.ArcOfCircle(Part.Circle(V(0, 0, 0), V(0, 0, 1), 75.946), math.radians(160.461016), math.radians(199.538984)),
], False)
sketch9.addConstraint([
    Sketcher.Constraint("Coincident", 0, 2, 1, 1),
    Sketcher.Constraint("Coincident", 1, 2, 2, 1),
    Sketcher.Constraint("Coincident", 2, 2, 3, 1),
    Sketcher.Constraint("Coincident", 3, 2, 0, 1),
    Sketcher.Constraint("Horizontal", 0),
    Sketcher.Constraint("Vertical", 1),
    Sketcher.Constraint("Horizontal", 2),
    Sketcher.Constraint("Coincident", 3, 3, -1, 1),
    Sketcher.Constraint("Vertical", 2, 2, 3, 2),
    Sketcher.Constraint("DistanceY", 1, 1, 1, 2, Q("2 in")),
    Sketcher.Constraint("Radius", 3, Q("2.99 in")),
    Sketcher.Constraint("DistanceX", 0, 1, 0, 2, Q("0.25 in")),
])
pad3 = doc.addObject("PartDesign::Pad", "Pad002")
body.addObject(pad3)
pad3.Profile = sketch9
pad3.Length = Q("0.325 in")

sketch10 = doc.addObject("Sketcher::SketchObject", "Sketch009")
body.addObject(sketch10)
sketch10.AttachmentSupport = (doc.XZ_Plane, [""])
sketch10.MapMode = "FlatFace"
sketch10.AttachmentOffset = App.Placement(V(0, 0, 1 * 25.4), App.Rotation())
add_polygon(sketch10, [(-65.222585, 6.985), (-65.222585, 3.81), (4.627415, 3.81), (4.627415, 6.985)])
sketch10.addConstraint([
    Sketcher.Constraint("Vertical", 0),
    Sketcher.Constraint("Horizontal", 1),
    Sketcher.Constraint("Vertical", 2),
    Sketcher.Constraint("Horizontal", 3),
    Sketcher.Constraint("DistanceX", 1, 1, 1, 2, Q("2.75 in")),
    Sketcher.Constraint("DistanceY", 0, 2, 0, 1, Q("0.125 in")),
    Sketcher.Constraint("DistanceY", -1, 1, 0, 2, Q("0.15 in")),
    Sketcher.Constraint("DistanceX", 0, 2, -1, 1, Q("65.222585 mm")),
])
pad4 = doc.addObject("PartDesign::Pad", "Pad003")
body.addObject(pad4)
pad4.Profile = sketch10
pad4.Length = Q("0.1 in")
pad4.Reversed = True
doc.recompute()

mirrored = doc.addObject("PartDesign::Mirrored", "Mirrored")
body.addObject(mirrored)
mirrored.Originals = [pad4]
mirrored.MirrorPlane = (doc.XZ_Plane, [""])
body.Tip = mirrored

sketch11 = doc.addObject("Sketcher::SketchObject", "Sketch010")
body.addObject(sketch11)
sketch11.AttachmentSupport = (doc.XY_Plane, [""])
sketch11.MapMode = "FlatFace"
sketch11.addGeometry([
    Part.Circle(V(-54.102, 19.05, 0), V(0, 0, 1), 1.02235),
    Part.Circle(V(-16.002, 19.05, 0), V(0, 0, 1), 1.02235),
    Part.Circle(V(-16.002, -19.05, 0), V(0, 0, 1), 1.02235),
    Part.Circle(V(-54.102, -19.05, 0), V(0, 0, 1), 1.02235),
], False)
sketch11.addConstraint([
    Sketcher.Constraint("Equal", 0, 1),
    Sketcher.Constraint("Equal", 1, 2),
    Sketcher.Constraint("Equal", 2, 3),
    Sketcher.Constraint("Symmetric", 1, 3, 2, 3, -1),
    Sketcher.Constraint("Symmetric", 0, 3, 3, 3, -1),
    Sketcher.Constraint("Horizontal", 0, 3, 1, 3),
    Sketcher.Constraint("Diameter", 0, Q("0.0805 in")),
    Sketcher.Constraint("DistanceX", 0, 3, 1, 3, Q("1.5 in")),
    Sketcher.Constraint("DistanceY", 2, 3, 1, 3, Q("1.5 in")),
    Sketcher.Constraint("DistanceX", 0, 3, -1, 1, Q("2.13 in")),
])
pocket7 = doc.addObject("PartDesign::Pocket", "Pocket006")
body.addObject(pocket7)
pocket7.Profile = sketch11
pocket7.Type = "ThroughAll"
pocket7.Reversed = True

doc.recompute()
